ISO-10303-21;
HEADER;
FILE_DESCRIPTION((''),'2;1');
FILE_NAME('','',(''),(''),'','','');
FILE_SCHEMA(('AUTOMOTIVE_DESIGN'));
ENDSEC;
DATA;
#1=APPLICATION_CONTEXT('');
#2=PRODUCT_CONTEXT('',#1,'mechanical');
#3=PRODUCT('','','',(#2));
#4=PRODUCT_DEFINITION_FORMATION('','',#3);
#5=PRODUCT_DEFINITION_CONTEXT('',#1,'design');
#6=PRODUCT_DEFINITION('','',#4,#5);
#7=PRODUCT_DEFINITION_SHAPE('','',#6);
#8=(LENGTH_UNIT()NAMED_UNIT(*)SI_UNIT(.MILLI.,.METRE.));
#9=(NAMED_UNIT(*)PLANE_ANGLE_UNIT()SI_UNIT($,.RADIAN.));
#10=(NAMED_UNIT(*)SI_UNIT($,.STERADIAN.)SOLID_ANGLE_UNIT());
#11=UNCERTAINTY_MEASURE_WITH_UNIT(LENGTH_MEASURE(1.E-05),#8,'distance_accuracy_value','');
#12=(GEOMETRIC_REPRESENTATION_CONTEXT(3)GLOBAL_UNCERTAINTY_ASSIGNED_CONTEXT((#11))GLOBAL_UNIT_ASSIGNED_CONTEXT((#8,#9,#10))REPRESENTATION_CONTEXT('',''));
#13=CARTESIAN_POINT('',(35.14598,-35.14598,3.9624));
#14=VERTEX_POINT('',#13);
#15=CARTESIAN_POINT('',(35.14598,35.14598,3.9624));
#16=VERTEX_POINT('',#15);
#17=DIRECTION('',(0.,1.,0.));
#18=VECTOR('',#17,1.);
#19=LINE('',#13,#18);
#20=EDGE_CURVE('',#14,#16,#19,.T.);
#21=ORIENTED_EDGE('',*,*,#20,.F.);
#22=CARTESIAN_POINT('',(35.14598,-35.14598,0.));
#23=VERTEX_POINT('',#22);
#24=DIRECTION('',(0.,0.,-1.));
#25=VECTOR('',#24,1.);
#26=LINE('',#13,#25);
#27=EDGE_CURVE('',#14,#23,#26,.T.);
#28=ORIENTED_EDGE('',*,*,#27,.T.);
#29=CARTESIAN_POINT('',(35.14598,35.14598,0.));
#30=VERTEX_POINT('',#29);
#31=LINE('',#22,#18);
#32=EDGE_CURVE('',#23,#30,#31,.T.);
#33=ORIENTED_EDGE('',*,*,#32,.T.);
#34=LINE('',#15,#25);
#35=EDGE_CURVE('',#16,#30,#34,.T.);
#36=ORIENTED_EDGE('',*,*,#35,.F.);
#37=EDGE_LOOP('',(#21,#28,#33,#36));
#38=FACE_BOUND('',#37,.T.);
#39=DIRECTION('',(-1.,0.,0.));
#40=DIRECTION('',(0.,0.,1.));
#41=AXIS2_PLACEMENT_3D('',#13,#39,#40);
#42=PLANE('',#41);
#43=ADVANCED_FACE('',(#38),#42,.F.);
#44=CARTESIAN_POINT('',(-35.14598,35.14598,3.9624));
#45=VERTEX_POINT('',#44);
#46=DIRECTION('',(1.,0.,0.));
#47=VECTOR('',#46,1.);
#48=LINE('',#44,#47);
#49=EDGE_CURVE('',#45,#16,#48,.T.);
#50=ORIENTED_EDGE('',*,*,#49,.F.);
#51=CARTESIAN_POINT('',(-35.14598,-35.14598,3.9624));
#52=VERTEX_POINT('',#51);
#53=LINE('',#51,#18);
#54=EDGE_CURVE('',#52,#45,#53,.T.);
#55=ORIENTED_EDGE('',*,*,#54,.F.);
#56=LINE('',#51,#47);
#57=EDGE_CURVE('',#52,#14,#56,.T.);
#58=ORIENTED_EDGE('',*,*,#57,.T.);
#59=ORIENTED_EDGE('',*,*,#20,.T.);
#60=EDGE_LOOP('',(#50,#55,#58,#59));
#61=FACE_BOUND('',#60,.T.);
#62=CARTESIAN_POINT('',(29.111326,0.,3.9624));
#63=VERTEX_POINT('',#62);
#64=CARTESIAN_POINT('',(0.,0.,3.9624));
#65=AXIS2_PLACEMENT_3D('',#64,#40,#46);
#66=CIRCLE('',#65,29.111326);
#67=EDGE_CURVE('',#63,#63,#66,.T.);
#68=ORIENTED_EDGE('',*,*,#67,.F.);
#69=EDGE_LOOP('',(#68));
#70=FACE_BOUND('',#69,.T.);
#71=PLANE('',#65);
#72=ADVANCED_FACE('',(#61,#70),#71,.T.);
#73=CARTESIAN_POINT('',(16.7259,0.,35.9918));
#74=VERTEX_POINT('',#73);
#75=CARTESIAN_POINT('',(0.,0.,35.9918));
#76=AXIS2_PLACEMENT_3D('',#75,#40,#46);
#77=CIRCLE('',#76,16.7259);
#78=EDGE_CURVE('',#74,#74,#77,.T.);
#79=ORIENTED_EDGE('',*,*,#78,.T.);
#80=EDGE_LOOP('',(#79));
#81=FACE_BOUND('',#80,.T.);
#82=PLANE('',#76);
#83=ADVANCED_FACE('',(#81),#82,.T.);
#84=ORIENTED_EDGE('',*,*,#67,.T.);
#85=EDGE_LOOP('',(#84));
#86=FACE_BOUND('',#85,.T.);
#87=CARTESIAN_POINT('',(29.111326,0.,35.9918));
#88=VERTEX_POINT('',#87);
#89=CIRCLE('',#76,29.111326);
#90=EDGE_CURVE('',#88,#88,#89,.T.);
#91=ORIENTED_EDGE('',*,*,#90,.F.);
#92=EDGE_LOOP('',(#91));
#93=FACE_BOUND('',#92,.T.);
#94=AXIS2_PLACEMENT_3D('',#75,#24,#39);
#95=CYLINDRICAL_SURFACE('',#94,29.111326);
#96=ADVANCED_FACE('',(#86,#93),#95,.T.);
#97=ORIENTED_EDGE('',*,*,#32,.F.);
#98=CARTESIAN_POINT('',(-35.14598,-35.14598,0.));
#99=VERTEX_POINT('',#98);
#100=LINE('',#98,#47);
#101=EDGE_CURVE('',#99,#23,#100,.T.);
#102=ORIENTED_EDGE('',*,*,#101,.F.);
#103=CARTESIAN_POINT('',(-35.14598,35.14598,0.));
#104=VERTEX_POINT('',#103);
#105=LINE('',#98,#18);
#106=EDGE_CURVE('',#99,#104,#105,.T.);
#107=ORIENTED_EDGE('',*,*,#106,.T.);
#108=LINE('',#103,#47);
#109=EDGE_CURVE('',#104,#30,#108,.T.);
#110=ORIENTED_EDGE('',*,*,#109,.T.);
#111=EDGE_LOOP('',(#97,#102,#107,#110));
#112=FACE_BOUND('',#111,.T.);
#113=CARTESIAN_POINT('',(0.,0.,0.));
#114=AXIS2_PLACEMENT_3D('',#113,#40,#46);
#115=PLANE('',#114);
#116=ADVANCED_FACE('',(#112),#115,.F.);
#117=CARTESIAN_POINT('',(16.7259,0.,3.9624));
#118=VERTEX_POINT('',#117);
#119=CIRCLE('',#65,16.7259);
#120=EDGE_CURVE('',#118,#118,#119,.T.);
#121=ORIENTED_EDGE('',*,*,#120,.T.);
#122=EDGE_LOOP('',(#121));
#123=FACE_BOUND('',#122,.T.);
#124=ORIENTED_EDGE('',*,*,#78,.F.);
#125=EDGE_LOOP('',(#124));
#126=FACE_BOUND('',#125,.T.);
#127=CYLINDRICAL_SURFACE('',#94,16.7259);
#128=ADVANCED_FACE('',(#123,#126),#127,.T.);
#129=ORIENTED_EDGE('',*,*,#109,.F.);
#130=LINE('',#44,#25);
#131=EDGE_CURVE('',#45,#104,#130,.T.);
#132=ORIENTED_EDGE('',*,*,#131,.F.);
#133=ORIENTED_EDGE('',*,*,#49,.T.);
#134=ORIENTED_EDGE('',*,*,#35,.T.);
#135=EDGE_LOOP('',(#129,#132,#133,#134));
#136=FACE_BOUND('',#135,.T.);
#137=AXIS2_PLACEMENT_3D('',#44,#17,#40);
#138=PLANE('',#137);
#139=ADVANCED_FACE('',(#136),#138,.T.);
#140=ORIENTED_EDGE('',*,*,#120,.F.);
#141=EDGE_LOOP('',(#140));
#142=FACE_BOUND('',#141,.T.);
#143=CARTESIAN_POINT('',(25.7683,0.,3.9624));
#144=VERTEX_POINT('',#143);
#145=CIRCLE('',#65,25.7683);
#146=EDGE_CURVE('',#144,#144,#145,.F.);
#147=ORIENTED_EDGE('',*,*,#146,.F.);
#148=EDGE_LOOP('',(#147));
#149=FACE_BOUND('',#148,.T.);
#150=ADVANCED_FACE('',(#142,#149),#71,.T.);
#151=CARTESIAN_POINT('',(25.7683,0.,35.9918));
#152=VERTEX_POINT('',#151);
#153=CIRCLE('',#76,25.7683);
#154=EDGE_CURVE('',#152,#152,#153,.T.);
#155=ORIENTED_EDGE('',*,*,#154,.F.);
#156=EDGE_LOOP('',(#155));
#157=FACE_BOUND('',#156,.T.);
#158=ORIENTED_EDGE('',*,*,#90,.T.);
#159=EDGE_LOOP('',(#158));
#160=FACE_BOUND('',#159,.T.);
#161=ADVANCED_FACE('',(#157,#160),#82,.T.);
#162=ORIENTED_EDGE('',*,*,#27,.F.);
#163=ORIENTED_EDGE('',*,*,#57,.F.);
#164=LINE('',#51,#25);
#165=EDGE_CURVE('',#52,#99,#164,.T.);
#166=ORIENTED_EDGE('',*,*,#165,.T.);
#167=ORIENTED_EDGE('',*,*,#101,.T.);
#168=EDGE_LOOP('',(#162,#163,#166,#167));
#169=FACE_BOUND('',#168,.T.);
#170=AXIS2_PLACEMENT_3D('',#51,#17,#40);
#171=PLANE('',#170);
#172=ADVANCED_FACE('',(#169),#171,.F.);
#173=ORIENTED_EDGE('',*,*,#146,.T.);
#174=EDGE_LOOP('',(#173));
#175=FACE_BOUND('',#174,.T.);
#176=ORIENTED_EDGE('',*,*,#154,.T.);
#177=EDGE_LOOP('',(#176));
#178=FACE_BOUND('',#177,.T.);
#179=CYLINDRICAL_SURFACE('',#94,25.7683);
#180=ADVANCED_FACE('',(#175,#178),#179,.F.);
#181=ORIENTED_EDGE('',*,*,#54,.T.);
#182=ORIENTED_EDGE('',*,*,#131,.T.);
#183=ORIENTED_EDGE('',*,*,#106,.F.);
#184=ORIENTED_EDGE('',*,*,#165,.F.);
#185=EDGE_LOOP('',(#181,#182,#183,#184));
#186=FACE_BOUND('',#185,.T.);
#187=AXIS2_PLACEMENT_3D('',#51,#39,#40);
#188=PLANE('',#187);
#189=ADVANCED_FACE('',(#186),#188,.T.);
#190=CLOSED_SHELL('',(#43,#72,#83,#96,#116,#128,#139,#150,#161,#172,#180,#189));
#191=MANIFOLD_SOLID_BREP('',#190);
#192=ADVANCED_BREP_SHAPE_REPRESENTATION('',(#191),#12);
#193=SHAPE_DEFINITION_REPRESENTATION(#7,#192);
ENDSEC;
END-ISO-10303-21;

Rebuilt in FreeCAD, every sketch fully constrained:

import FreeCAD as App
import Part
import Sketcher
Q = App.Units.Quantity

doc = App.newDocument("Part")
body = doc.addObject("PartDesign::Body", "Body")

sketch1 = body.newObject("Sketcher::SketchObject", "Sketch")
sketch1.AttachmentSupport = (doc.getObject("XY_Plane"), [""])
sketch1.MapMode = "FlatFace"
sketch1.addGeometry(Part.LineSegment(App.Vector(-35, 35, 0), App.Vector(-35, -35, 0)), False)
sketch1.addGeometry(Part.LineSegment(App.Vector(-35, -35, 0), App.Vector(35, -35, 0)), False)
sketch1.addGeometry(Part.LineSegment(App.Vector(35, -35, 0), App.Vector(35, 35, 0)), False)
sketch1.addGeometry(Part.LineSegment(App.Vector(35, 35, 0), App.Vector(-35, 35, 0)), False)
sketch1.addConstraint(Sketcher.Constraint("Coincident", 0, 2, 1, 1))
sketch1.addConstraint(Sketcher.Constraint("Coincident", 1, 2, 2, 1))
sketch1.addConstraint(Sketcher.Constraint("Coincident", 2, 2, 3, 1))
sketch1.addConstraint(Sketcher.Constraint("Coincident", 3, 2, 0, 1))
sketch1.addConstraint(Sketcher.Constraint("Vertical", 0))
sketch1.addConstraint(Sketcher.Constraint("Horizontal", 1))
sketch1.addConstraint(Sketcher.Constraint("Vertical", 2))
sketch1.addConstraint(Sketcher.Constraint("Horizontal", 3))
sketch1.addConstraint(Sketcher.Constraint("Symmetric", 0, 2, 2, 2, -1, 1))
sketch1.addConstraint(Sketcher.Constraint("Equal", 3, 0))
sketch1.addConstraint(Sketcher.Constraint("DistanceX", 1, 1, 1, 2, Q("2.7674 in")))
pad1 = body.newObject("PartDesign::Pad", "Pad")
pad1.Profile = sketch1
pad1.Length = Q("0.156 in")

sketch2 = body.newObject("Sketcher::SketchObject", "Sketch001")
sketch2.AttachmentSupport = (doc.getObject("XY_Plane"), [""])
sketch2.MapMode = "FlatFace"
sketch2.AttachmentOffset = App.Placement(App.Vector(0, 0, 0.156 * 25.4), App.Rotation())
sketch2.addGeometry(Part.Circle(App.Vector(0, 0, 0), App.Vector(0, 0, 1), 29), False)
sketch2.addGeometry(Part.Circle(App.Vector(0, 0, 0), App.Vector(0, 0, 1), 26), False)
sketch2.addConstraint(Sketcher.Constraint("Coincident", 0, 3, -1, 1))
sketch2.addConstraint(Sketcher.Constraint("Coincident", 1, 3, -1, 1))
sketch2.addConstraint(Sketcher.Constraint("Diameter", 1, Q("2.029 in")))
sketch2.addConstraint(Sketcher.Constraint("Diameter", 0, Q("58.222653 mm")))
pad2 = body.newObject("PartDesign::Pad", "Pad001")
pad2.Profile = sketch2
pad2.Length = Q("1.261 in")

sketch3 = body.newObject("Sketcher::SketchObject", "Sketch002")
sketch3.AttachmentSupport = (doc.getObject("XY_Plane"), [""])
sketch3.MapMode = "FlatFace"
sketch3.AttachmentOffset = App.Placement(App.Vector(0, 0, 0.156 * 25.4), App.Rotation())
sketch3.addGeometry(Part.Circle(App.Vector(0, 0, 0), App.Vector(0, 0, 1), 17), False)
sketch3.addConstraint(Sketcher.Constraint("Coincident", 0, 3, -1, 1))
sketch3.addConstraint(Sketcher.Constraint("Diameter", 0, Q("1.317 in")))
pad3 = body.newObject("PartDesign::Pad", "Pad002")
pad3.Profile = sketch3
pad3.Length = Q("1.261 in")

doc.recompute()
